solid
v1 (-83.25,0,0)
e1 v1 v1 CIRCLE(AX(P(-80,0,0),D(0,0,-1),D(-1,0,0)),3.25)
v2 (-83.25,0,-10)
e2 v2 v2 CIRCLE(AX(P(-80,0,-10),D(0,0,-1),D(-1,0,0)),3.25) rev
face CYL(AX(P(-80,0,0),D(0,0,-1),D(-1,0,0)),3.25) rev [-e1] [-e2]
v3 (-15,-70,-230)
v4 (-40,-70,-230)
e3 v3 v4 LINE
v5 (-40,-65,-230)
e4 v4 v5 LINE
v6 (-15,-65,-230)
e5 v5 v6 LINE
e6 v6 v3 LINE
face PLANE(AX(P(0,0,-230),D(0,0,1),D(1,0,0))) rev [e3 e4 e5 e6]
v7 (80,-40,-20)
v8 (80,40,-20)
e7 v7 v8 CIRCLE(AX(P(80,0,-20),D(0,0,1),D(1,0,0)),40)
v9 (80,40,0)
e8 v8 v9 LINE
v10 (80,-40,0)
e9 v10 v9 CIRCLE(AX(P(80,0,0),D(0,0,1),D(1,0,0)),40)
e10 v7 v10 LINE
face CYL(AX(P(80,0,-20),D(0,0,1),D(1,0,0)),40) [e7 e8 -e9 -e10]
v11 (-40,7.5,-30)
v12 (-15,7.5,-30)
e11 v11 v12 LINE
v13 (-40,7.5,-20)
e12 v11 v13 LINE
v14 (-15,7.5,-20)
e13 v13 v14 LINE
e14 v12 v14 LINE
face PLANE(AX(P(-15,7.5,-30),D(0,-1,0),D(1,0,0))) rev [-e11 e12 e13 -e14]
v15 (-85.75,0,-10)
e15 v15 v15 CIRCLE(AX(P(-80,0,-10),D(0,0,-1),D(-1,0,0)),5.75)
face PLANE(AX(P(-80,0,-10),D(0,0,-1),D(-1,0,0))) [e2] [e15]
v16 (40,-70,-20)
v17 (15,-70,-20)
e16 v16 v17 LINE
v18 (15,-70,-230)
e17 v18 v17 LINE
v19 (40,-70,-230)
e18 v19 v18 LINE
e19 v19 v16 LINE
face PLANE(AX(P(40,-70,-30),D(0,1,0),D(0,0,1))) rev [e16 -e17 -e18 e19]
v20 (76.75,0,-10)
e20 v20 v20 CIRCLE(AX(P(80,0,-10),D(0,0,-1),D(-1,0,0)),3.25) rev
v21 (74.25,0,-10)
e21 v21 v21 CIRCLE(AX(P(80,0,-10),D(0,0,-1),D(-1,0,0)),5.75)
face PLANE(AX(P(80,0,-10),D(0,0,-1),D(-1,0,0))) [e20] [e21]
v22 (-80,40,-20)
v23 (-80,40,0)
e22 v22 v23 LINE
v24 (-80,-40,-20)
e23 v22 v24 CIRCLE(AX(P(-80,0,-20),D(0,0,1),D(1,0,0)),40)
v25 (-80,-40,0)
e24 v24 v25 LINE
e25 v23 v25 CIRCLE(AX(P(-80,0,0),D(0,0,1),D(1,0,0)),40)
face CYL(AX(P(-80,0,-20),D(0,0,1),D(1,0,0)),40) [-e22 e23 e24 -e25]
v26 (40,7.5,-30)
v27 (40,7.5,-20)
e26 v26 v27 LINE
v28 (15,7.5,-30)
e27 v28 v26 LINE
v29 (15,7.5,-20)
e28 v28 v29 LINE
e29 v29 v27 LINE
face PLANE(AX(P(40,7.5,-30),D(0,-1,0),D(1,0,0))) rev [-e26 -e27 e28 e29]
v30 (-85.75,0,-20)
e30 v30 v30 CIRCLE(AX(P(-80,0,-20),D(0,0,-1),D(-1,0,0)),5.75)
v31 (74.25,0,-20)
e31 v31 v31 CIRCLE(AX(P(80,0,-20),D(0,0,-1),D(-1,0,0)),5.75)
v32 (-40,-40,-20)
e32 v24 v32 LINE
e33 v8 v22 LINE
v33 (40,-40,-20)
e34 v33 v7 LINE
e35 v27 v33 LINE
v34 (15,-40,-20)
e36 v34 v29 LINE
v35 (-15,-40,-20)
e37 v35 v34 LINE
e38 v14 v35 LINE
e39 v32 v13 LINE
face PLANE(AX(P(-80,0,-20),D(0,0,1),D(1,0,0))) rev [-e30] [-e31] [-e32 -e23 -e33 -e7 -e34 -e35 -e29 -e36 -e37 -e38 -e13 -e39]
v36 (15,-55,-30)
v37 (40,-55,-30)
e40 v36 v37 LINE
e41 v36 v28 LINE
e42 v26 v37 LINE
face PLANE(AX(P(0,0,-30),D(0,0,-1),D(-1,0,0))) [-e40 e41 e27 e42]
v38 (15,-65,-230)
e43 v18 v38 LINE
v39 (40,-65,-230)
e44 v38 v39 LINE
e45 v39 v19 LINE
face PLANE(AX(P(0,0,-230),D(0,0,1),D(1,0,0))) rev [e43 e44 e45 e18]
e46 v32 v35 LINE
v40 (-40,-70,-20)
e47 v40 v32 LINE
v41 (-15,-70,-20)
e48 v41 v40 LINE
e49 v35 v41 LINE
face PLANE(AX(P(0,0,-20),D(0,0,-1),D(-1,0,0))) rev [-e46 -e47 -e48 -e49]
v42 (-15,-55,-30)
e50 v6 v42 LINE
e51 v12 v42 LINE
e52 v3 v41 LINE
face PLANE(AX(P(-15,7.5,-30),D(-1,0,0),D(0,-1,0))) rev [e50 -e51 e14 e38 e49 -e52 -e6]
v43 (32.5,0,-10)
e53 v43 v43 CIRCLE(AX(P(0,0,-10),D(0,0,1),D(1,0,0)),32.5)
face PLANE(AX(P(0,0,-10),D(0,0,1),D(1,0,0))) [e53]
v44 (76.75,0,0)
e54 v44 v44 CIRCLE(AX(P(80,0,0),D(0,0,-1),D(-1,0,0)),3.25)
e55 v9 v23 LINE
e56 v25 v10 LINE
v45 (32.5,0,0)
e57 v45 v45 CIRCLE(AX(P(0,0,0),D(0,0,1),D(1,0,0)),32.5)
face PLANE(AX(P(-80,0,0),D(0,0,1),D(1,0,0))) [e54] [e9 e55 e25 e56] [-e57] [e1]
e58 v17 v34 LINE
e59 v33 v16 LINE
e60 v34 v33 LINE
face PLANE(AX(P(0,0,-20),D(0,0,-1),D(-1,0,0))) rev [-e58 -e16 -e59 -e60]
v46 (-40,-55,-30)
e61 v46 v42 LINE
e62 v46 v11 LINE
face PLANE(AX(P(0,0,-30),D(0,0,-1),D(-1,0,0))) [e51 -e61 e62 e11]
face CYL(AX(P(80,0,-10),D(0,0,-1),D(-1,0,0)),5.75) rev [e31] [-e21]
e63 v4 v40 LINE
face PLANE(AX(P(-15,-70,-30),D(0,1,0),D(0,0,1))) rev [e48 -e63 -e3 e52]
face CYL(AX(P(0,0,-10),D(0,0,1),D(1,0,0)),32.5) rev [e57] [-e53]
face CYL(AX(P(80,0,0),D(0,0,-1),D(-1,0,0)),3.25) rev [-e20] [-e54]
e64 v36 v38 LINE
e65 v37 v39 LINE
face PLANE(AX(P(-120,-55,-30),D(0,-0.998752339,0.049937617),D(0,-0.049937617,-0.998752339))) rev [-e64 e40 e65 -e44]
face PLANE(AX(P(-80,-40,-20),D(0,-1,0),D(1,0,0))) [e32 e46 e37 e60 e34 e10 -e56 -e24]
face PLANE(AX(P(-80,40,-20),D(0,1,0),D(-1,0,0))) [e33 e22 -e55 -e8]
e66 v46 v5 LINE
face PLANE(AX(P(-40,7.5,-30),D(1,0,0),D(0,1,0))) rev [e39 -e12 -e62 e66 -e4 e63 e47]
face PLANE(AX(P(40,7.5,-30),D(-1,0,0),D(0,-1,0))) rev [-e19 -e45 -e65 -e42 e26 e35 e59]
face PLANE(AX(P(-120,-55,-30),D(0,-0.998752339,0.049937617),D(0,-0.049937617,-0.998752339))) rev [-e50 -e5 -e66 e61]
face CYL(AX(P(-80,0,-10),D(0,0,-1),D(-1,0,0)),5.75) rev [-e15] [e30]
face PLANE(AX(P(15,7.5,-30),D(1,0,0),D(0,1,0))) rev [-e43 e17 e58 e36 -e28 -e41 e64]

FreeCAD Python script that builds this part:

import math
import FreeCAD as App
import Part
import Sketcher
Q = App.Units.Quantity


def add_polygon(sketch, points):
    """Adds a closed chain of lines whose ends are joined by coincident constraints."""
    first, n = sketch.GeometryCount, len(points)
    for a, b in zip(points, points[1:] + points[:1]):
        sketch.addGeometry(Part.LineSegment(App.Vector(*a, 0), App.Vector(*b, 0)), False)
    for i in range(n):
        sketch.addConstraint(Sketcher.Constraint("Coincident", first + i, 2, first + (i + 1) % n, 1))

doc = App.newDocument("Part")
body = doc.addObject("PartDesign::Body", "Body")

# Sketch on XY plane
sketch1 = body.newObject("Sketcher::SketchObject", "Sketch")
sketch1.AttachmentSupport = (doc.getObject("XY_Plane"), [""])
sketch1.MapMode = "FlatFace"
sketch1.addGeometry([
    Part.LineSegment(App.Vector(80, 40, 0), App.Vector(-80, 40, 0)),
    Part.ArcOfCircle(Part.Circle(App.Vector(-80, 0, 0), App.Vector(0, 0, 1), 40), math.radians(90), math.radians(270)),
    Part.LineSegment(App.Vector(-80, -40, 0), App.Vector(80, -40, 0)),
    Part.ArcOfCircle(Part.Circle(App.Vector(80, 0, 0), App.Vector(0, 0, 1), 40), math.radians(-90), math.radians(90)),
], False)
sketch1.addConstraint([
    Sketcher.Constraint("Tangent", 0, 2, 1, 1),
    Sketcher.Constraint("Tangent", 1, 2, 2, 1),
    Sketcher.Constraint("Tangent", 2, 2, 3, 1),
    Sketcher.Constraint("Tangent", 3, 2, 0, 1),
    Sketcher.Constraint("Horizontal", 0),
    Sketcher.Constraint("Horizontal", 2),
    Sketcher.Constraint("Symmetric", 1, 3, 3, 3, -1, 1),
    Sketcher.Constraint("Radius", 1, Q("40 mm")),
    Sketcher.Constraint("DistanceX", 0, 2, 0, 1, Q("160 mm")),
])
pad1 = body.newObject("PartDesign::Pad", "Pad")
pad1.Profile = sketch1
pad1.Length = 20
pad1.Reversed = True

# Sketch on XY plane
sketch2 = body.newObject("Sketcher::SketchObject", "Sketch001")
sketch2.AttachmentSupport = (doc.getObject("XY_Plane"), [""])
sketch2.MapMode = "FlatFace"
sketch2.addGeometry(Part.Circle(App.Vector(0, 0, 0), App.Vector(0, 0, 1), 32), False)
sketch2.addConstraint([
    Sketcher.Constraint("Coincident", 0, 3, -1, 1),
    Sketcher.Constraint("Diameter", 0, Q("65 mm")),
])
pocket1 = body.newObject("PartDesign::Pocket", "Pocket")
pocket1.Profile = sketch2
pocket1.Length = 10

# Sketch on XY plane
sketch3 = body.newObject("Sketcher::SketchObject", "Sketch002")
sketch3.AttachmentSupport = (doc.getObject("XY_Plane"), [""])
sketch3.MapMode = "FlatFace"
sketch3.AttachmentOffset = App.Placement(App.Vector(0, 0, -20), App.Rotation())
add_polygon(sketch3, [(40, 8), (40, -70), (15, -70), (15, 8)])  # lines 0-3
add_polygon(sketch3, [(-15, 8), (-15, -70), (-40, -70), (-40, 8)])  # lines 4-7
sketch3.addConstraint([
    Sketcher.Constraint("Vertical", 0),
    Sketcher.Constraint("Horizontal", 1),
    Sketcher.Constraint("Vertical", 2),
    Sketcher.Constraint("Horizontal", 3),
    Sketcher.Constraint("Vertical", 4),
    Sketcher.Constraint("Horizontal", 5),
    Sketcher.Constraint("Vertical", 6),
    Sketcher.Constraint("Horizontal", 7),
    Sketcher.Constraint("Symmetric", 1, 2, 4, 2, -2),
    Sketcher.Constraint("Symmetric", 3, 2, 6, 2, -2),
    Sketcher.Constraint("DistanceX", 1, 2, 1, 1, Q("25 mm")),
    Sketcher.Constraint("DistanceY", 0, 2, 0, 1, Q("77.5 mm")),
    Sketcher.Constraint("DistanceX", -1, 1, 0, 2, Q("40 mm")),
    Sketcher.Constraint("DistanceY", 0, 2, -1, 1, Q("70 mm")),
])
pad2 = body.newObject("PartDesign::Pad", "Pad001")
pad2.Profile = sketch3
pad2.Length = 10
pad2.Reversed = True

# Sketch on XY plane
sketch4 = body.newObject("Sketcher::SketchObject", "Sketch003")
sketch4.AttachmentSupport = (doc.getObject("XY_Plane"), [""])
sketch4.MapMode = "FlatFace"
sketch4.AttachmentOffset = App.Placement(App.Vector(0, 0, -30), App.Rotation())
add_polygon(sketch4, [(40, -55), (40, -70), (15, -70), (15, -55)])  # lines 0-3
add_polygon(sketch4, [(-15, -55), (-15, -70), (-40, -70), (-40, -55)])  # lines 4-7
sketch4.addConstraint([
    Sketcher.Constraint("Vertical", 0),
    Sketcher.Constraint("Horizontal", 1),
    Sketcher.Constraint("Vertical", 2),
    Sketcher.Constraint("Horizontal", 3),
    Sketcher.Constraint("Vertical", 4),
    Sketcher.Constraint("Horizontal", 5),
    Sketcher.Constraint("Vertical", 6),
    Sketcher.Constraint("Horizontal", 7),
    Sketcher.Constraint("Symmetric", 1, 2, 4, 2, -2),
    Sketcher.Constraint("Symmetric", 3, 2, 6, 2, -2),
    Sketcher.Constraint("DistanceX", 1, 2, 1, 1, Q("25 mm")),
    Sketcher.Constraint("DistanceY", 0, 2, 0, 1, Q("15 mm")),
    Sketcher.Constraint("DistanceX", -1, 1, 0, 2, Q("40 mm")),
    Sketcher.Constraint("DistanceY", 0, 2, -1, 1, Q("70 mm")),
])
pad3 = body.newObject("PartDesign::Pad", "Pad002")
pad3.Profile = sketch4
pad3.Length = 200
pad3.Reversed = True

# Sketch on YZ plane
sketch5 = body.newObject("Sketcher::SketchObject", "Sketch004")
sketch5.AttachmentSupport = (doc.getObject("YZ_Plane"), [""])
sketch5.MapMode = "FlatFace"
sketch5.AttachmentOffset = App.Placement(App.Vector(0, 0, 40), App.Rotation())
add_polygon(sketch5, [(-55, -30), (-65, -230), (-55, -230)])  # lines 0-2
sketch5.addConstraint([
    Sketcher.Constraint("Horizontal", 1),
    Sketcher.Constraint("Vertical", 2),
    Sketcher.Constraint("DistanceX", 1, 1, 1, 2, Q("10 mm")),
    Sketcher.Constraint("DistanceY", 2, 1, 2, 2, Q("200 mm")),
    Sketcher.Constraint("DistanceX", 0, 2, -1, 1, Q("65 mm")),
    Sketcher.Constraint("DistanceY", 0, 2, -1, 1, Q("230 mm")),
])
pocket2 = body.newObject("PartDesign::Pocket", "Pocket001")
pocket2.Profile = sketch5
pocket2.Type = "ThroughAll"

# Sketch on XY plane
sketch6 = body.newObject("Sketcher::SketchObject", "Sketch005")
sketch6.AttachmentSupport = (doc.getObject("XY_Plane"), [""])
sketch6.MapMode = "FlatFace"
sketch6.AttachmentOffset = App.Placement(App.Vector(0, 0, -20), App.Rotation())
sketch6.addGeometry([
    Part.Circle(App.Vector(80, 0, 0), App.Vector(0, 0, 1), 3.2),
    Part.Circle(App.Vector(-80, 0, 0), App.Vector(0, 0, 1), 3.2),
], False)
sketch6.addConstraint([
    Sketcher.Constraint("Equal", 0, 1),
    Sketcher.Constraint("Symmetric", 0, 3, 1, 3, -1, 1),
    Sketcher.Constraint("PointOnObject", 0, 3, -1),
    Sketcher.Constraint("Diameter", 0, Q("6.5 mm")),
    Sketcher.Constraint("DistanceX", -1, 1, 0, 3, Q("80 mm")),
])
pocket3 = body.newObject("PartDesign::Pocket", "Pocket002")
pocket3.Profile = sketch6
pocket3.Type = "ThroughAll"
pocket3.Reversed = True

# Sketch on XY plane
sketch7 = body.newObject("Sketcher::SketchObject", "Sketch006")
sketch7.AttachmentSupport = (doc.getObject("XY_Plane"), [""])
sketch7.MapMode = "FlatFace"
sketch7.AttachmentOffset = App.Placement(App.Vector(0, 0, -20), App.Rotation())
sketch7.addGeometry([
    Part.Circle(App.Vector(80, 0, 0), App.Vector(0, 0, 1), 6),
    Part.Circle(App.Vector(-80, 0, 0), App.Vector(0, 0, 1), 6),
], False)
sketch7.addConstraint([
    Sketcher.Constraint("Equal", 0, 1),
    Sketcher.Constraint("Symmetric", 0, 3, 1, 3, -1, 1),
    Sketcher.Constraint("PointOnObject", 0, 3, -1),
    Sketcher.Constraint("Diameter", 0, Q("11.5 mm")),
    Sketcher.Constraint("DistanceX", -1, 1, 0, 3, Q("80 mm")),
])
pocket4 = body.newObject("PartDesign::Pocket", "Pocket003")
pocket4.Profile = sketch7
pocket4.Length = 10
pocket4.Reversed = True

doc.recompute()
